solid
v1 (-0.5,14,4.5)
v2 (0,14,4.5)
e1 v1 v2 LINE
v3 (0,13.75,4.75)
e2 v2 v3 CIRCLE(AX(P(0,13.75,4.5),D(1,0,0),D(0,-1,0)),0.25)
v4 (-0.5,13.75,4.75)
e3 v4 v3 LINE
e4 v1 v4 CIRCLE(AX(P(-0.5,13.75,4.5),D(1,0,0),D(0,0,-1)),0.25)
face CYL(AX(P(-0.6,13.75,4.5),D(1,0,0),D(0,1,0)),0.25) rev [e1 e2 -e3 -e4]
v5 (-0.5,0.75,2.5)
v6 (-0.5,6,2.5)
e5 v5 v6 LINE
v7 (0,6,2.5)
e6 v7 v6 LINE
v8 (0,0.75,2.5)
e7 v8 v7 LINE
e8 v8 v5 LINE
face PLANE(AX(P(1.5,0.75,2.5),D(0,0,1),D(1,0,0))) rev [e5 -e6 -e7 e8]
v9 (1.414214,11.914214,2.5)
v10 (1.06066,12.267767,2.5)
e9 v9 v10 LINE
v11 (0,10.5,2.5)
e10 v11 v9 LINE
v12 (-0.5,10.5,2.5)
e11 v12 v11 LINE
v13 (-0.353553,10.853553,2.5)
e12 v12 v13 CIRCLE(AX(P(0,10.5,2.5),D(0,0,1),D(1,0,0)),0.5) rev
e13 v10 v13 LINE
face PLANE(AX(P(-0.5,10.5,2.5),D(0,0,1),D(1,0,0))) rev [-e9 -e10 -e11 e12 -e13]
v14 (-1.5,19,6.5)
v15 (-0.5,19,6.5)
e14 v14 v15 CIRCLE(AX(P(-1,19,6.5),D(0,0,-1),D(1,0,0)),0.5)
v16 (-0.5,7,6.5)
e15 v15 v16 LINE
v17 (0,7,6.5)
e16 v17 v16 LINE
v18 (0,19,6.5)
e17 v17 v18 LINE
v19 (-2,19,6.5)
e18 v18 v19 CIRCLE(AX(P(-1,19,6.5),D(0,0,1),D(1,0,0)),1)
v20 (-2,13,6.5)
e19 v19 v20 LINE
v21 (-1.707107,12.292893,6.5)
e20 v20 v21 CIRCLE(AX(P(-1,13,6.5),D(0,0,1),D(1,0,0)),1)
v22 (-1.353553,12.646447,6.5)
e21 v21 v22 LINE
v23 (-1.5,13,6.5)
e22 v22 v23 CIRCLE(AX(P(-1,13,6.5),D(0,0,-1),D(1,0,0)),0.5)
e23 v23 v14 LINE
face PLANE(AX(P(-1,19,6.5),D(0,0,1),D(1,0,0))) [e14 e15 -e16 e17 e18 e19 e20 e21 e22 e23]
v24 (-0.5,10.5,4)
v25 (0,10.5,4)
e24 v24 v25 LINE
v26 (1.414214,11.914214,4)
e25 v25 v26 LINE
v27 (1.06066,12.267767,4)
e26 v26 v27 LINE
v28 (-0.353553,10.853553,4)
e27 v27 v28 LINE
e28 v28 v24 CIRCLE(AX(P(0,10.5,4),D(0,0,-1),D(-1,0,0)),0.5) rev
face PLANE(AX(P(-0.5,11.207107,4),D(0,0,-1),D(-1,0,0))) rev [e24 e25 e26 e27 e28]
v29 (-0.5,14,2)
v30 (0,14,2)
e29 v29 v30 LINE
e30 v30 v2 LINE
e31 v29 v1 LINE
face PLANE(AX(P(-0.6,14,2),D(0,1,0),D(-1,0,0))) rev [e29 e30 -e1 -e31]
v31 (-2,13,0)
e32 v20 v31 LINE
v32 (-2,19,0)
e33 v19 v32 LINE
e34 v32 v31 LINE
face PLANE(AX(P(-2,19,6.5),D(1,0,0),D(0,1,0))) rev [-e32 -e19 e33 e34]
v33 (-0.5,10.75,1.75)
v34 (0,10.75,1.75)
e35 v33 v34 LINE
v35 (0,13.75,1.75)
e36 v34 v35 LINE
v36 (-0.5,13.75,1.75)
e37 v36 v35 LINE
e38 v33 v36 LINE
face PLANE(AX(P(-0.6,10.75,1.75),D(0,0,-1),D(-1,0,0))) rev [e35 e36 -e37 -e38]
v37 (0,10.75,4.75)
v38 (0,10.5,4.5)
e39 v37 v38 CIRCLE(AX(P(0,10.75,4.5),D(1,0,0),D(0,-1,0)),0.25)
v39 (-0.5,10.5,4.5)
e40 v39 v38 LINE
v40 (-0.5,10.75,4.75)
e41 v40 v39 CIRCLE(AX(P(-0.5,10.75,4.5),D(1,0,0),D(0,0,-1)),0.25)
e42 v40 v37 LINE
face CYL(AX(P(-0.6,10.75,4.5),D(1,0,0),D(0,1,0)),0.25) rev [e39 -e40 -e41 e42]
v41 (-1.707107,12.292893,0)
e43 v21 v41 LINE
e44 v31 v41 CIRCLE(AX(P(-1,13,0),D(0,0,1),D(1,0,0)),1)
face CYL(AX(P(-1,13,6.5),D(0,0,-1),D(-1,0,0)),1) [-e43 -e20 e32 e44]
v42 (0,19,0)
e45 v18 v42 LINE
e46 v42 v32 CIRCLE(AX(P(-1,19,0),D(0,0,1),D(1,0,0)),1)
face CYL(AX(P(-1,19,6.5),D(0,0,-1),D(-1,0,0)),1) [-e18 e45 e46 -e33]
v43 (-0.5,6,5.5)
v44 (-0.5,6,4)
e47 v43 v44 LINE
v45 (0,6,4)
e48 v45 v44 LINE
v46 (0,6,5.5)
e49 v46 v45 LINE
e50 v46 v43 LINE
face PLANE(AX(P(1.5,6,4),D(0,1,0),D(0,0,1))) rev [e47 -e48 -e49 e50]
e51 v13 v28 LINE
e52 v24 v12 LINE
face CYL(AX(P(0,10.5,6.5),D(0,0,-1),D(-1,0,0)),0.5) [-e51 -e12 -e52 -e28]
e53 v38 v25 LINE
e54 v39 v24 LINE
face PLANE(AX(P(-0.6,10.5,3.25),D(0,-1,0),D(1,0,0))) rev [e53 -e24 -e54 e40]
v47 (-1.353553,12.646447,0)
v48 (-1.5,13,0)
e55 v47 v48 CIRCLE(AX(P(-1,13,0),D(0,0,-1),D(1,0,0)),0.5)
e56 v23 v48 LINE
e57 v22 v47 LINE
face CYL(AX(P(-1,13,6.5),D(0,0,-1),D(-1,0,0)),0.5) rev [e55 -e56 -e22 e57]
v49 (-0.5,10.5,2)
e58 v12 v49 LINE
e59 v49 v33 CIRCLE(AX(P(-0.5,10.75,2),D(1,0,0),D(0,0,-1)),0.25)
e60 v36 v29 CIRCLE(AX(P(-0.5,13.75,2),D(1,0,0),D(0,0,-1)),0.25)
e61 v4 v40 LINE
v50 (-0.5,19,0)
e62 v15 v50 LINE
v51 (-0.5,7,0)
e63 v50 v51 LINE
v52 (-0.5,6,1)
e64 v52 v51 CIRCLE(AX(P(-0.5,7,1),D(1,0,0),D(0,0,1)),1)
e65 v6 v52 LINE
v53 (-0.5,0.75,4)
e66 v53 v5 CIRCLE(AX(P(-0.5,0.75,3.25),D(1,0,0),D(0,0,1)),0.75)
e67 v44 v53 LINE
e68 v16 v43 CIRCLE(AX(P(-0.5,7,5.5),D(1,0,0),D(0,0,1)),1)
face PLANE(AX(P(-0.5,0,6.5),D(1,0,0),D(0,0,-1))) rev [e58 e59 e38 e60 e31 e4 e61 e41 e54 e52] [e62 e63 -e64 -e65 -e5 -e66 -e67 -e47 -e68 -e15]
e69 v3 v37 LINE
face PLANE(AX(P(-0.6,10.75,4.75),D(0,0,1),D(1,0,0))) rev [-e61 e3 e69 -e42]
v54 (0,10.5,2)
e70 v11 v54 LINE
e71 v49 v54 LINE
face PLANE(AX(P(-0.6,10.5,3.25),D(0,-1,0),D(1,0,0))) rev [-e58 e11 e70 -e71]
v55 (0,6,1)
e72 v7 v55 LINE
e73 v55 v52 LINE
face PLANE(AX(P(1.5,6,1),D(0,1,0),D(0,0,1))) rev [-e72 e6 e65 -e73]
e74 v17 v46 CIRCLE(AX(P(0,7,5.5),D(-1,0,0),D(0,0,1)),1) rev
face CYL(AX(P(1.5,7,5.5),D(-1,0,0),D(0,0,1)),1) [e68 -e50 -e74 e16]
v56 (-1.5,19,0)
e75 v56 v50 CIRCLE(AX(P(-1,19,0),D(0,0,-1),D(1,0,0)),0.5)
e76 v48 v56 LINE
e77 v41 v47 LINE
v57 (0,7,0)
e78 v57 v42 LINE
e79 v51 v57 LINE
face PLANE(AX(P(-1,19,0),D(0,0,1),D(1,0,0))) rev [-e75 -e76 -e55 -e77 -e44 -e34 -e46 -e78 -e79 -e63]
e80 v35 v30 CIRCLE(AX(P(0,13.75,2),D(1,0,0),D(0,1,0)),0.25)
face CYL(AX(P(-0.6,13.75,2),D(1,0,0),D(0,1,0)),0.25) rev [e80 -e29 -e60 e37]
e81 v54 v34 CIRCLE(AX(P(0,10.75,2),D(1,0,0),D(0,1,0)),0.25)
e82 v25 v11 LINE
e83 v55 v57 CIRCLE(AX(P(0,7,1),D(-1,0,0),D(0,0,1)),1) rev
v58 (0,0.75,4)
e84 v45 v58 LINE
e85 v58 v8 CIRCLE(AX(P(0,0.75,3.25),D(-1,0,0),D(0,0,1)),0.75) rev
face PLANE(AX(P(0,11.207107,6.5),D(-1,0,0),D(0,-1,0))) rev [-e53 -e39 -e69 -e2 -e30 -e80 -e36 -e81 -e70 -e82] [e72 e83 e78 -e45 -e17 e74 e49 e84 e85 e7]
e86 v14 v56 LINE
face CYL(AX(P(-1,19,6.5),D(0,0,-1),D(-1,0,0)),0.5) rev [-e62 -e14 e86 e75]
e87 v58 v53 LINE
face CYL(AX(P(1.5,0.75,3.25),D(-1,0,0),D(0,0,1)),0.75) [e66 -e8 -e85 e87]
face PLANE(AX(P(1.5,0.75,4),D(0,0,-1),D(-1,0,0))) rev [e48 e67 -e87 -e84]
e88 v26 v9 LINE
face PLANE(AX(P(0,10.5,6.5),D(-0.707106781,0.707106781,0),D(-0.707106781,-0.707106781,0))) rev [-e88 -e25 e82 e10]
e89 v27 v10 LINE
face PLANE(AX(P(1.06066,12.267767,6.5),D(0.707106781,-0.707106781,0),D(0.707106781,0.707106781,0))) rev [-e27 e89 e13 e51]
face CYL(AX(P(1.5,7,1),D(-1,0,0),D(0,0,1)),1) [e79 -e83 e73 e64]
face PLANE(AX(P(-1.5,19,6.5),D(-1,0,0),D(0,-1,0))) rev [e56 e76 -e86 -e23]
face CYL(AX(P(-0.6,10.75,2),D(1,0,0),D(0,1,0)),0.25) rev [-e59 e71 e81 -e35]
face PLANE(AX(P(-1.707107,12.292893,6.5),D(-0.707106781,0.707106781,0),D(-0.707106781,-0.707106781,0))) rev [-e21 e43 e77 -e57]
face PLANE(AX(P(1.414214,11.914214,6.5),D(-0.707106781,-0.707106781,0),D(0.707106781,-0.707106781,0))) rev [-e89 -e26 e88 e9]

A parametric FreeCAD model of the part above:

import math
import FreeCAD as App
import Part
import Sketcher
from FreeCAD import Vector
Q = App.Units.Quantity


def edges_at(feature, points):
    """Names of the edges that pass closest to the given points."""
    edges = feature.Shape.Edges
    near = lambda p: min(range(len(edges)), key=lambda i: edges[i].distToShape(Part.Vertex(*p))[0])
    return sorted({f"Edge{near(p) + 1}" for p in points})


def add_polygon(sketch, points):
    """Adds a closed chain of lines whose ends are joined by coincident constraints."""
    first, n = sketch.GeometryCount, len(points)
    for a, b in zip(points, points[1:] + points[:1]):
        sketch.addGeometry(Part.LineSegment(App.Vector(*a, 0), App.Vector(*b, 0)), False)
    for i in range(n):
        sketch.addConstraint(Sketcher.Constraint("Coincident", first + i, 2, first + (i + 1) % n, 1))

doc = App.newDocument("Part")
body = doc.addObject("PartDesign::Body", "Body")
body.AllowCompound = True

# Sketch on XY plane
sketch1 = body.newObject("Sketcher::SketchObject", "Sketch")
sketch1.AttachmentSupport = (doc.getObject("XY_Plane"), [""])
sketch1.MapMode = "FlatFace"
sketch1.addGeometry([
    Part.LineSegment(Vector(-2, 19, 0), Vector(-2, 13, 0)),  # 0
    Part.ArcOfCircle(Part.Circle(Vector(-1, 13, 0), Vector(0, 0, 1), 1), math.radians(180), math.radians(225)),  # 1
    Part.LineSegment(Vector(-1.707107, 12.292893, 0), Vector(-1.353553, 12.646447, 0)),  # 2
    Part.ArcOfCircle(Part.Circle(Vector(-1, 13, 0), Vector(0, 0, 1), 0.5), math.radians(-180), math.radians(-135)),  # 3
    Part.LineSegment(Vector(-1.5, 13, 0), Vector(-1.5, 19, 0)),  # 4
    Part.ArcOfCircle(Part.Circle(Vector(-1, 19, 0), Vector(0, 0, 1), 0.5), math.radians(0), math.radians(180)),  # 5
    Part.LineSegment(Vector(-0.5, 19, 0), Vector(-0.5, 0, 0)),  # 6
    Part.LineSegment(Vector(-0.5, 0, 0), Vector(0, 0, 0)),  # 7
    Part.LineSegment(Vector(0, 0, 0), Vector(0, 10.5, 0)),  # 8
    Part.LineSegment(Vector(0, 10.5, 0), Vector(1.414214, 11.914214, 0)),  # 9
    Part.LineSegment(Vector(1.414214, 11.914214, 0), Vector(1.06066, 12.267767, 0)),  # 10
    Part.LineSegment(Vector(1.06066, 12.267767, 0), Vector(0, 11.207107, 0)),  # 11
    Part.LineSegment(Vector(0, 11.207107, 0), Vector(0, 19, 0)),  # 12
    Part.ArcOfCircle(Part.Circle(Vector(-1, 19, 0), Vector(0, 0, 1), 1), math.radians(0), math.radians(180)),  # 13
], False)
sketch1.addConstraint([
    Sketcher.Constraint("Tangent", 0, 2, 1, 1),
    Sketcher.Constraint("Coincident", 1, 2, 2, 1),
    Sketcher.Constraint("Coincident", 2, 2, 3, 2),
    Sketcher.Constraint("Tangent", 3, 1, 4, 1),
    Sketcher.Constraint("Tangent", 4, 2, 5, 2),
    Sketcher.Constraint("Tangent", 5, 1, 6, 1),
    Sketcher.Constraint("Coincident", 6, 2, 7, 1),
    Sketcher.Constraint("Coincident", 7, 2, 8, 1),
    Sketcher.Constraint("Coincident", 8, 2, 9, 1),
    Sketcher.Constraint("Coincident", 9, 2, 10, 1),
    Sketcher.Constraint("Coincident", 10, 2, 11, 1),
    Sketcher.Constraint("Coincident", 11, 2, 12, 1),
    Sketcher.Constraint("Tangent", 12, 2, 13, 1),
    Sketcher.Constraint("Tangent", 13, 2, 0, 1),
    Sketcher.Constraint("Vertical", 0),
    Sketcher.Constraint("Vertical", 4),
    Sketcher.Constraint("Vertical", 6),
    Sketcher.Constraint("Horizontal", 7),
    Sketcher.Constraint("Vertical", 8),
    Sketcher.Constraint("Vertical", 12),
    Sketcher.Constraint("Coincident", 7, 2, -1, 1),
    Sketcher.Constraint("Coincident", 3, 3, 1, 3),
    Sketcher.Constraint("Coincident", 13, 3, 5, 3),
    Sketcher.Constraint("Equal", 3, 5),
    Sketcher.Constraint("PointOnObject", 11, 2, -2),
    Sketcher.Constraint("Parallel", 2, 9),
    Sketcher.Constraint("Perpendicular", 9, 10),
    Sketcher.Constraint("Perpendicular", 10, 11),
    Sketcher.Constraint("Equal", 2, 10),
    Sketcher.Constraint("Radius", 1, 1.0),
    Sketcher.Constraint("Radius", 3, 0.5),
    Sketcher.Constraint("DistanceY", 0, 2, 0, 1, 6.0),
    Sketcher.Constraint("DistanceY", 6, 2, 6, 1, 19.0),
    Sketcher.Constraint("Angle", 2, Q("45 deg")),
    Sketcher.Constraint("Distance", 9, 2.0),
    Sketcher.Constraint("DistanceY", 8, 1, 8, 2, 10.5),
    Sketcher.Constraint("DistanceY", 10, 2, 2, 2, 0.37868),
])
pad1 = body.newObject("PartDesign::Pad", "Pad")
pad1.Profile = sketch1
pad1.Length = 6.5

# Sketch on YZ plane
sketch2 = body.newObject("Sketcher::SketchObject", "Sketch001")
sketch2.AttachmentSupport = (doc.getObject("YZ_Plane"), [""])
sketch2.MapMode = "FlatFace"
sketch2.AttachmentOffset = App.Placement(Vector(0, 0, -0.5), App.Rotation())
sketch2.addGeometry([
    Part.LineSegment(Vector(6, 5.5, 0), Vector(6, 4, 0)),  # 0
    Part.LineSegment(Vector(6, 4, 0), Vector(0.75, 4, 0)),  # 1
    Part.ArcOfCircle(Part.Circle(Vector(0.75, 3.25, 0), Vector(0, 0, 1), 0.75), math.radians(90), math.radians(270)),  # 2
    Part.LineSegment(Vector(0.75, 2.5, 0), Vector(6, 2.5, 0)),  # 3
    Part.LineSegment(Vector(6, 2.5, 0), Vector(6, 1, 0)),  # 4
    Part.ArcOfCircle(Part.Circle(Vector(7, 1, 0), Vector(0, 0, 1), 1), math.radians(-180), math.radians(-90)),  # 5
    Part.LineSegment(Vector(7, 0, 0), Vector(7, -2, 0)),  # 6
    Part.LineSegment(Vector(7, -2, 0), Vector(-1, -2, 0)),  # 7
    Part.LineSegment(Vector(-1, -2, 0), Vector(-1, 8.5, 0)),  # 8
    Part.LineSegment(Vector(-1, 8.5, 0), Vector(7, 8.5, 0)),  # 9
    Part.LineSegment(Vector(7, 8.5, 0), Vector(7, 6.5, 0)),  # 10
    Part.ArcOfCircle(Part.Circle(Vector(7, 5.5, 0), Vector(0, 0, 1), 1), math.radians(90), math.radians(180)),  # 11
], False)
sketch2.addConstraint([
    Sketcher.Constraint("Coincident", 0, 2, 1, 1),
    Sketcher.Constraint("Tangent", 1, 2, 2, 1),
    Sketcher.Constraint("Tangent", 2, 2, 3, 1),
    Sketcher.Constraint("Coincident", 3, 2, 4, 1),
    Sketcher.Constraint("Tangent", 4, 2, 5, 1),
    Sketcher.Constraint("Coincident", 5, 2, 6, 1),
    Sketcher.Constraint("Coincident", 6, 2, 7, 1),
    Sketcher.Constraint("Coincident", 7, 2, 8, 1),
    Sketcher.Constraint("Coincident", 8, 2, 9, 1),
    Sketcher.Constraint("Coincident", 9, 2, 10, 1),
    Sketcher.Constraint("Coincident", 10, 2, 11, 1),
    Sketcher.Constraint("Tangent", 11, 2, 0, 1),
    Sketcher.Constraint("Vertical", 0),
    Sketcher.Constraint("Horizontal", 1),
    Sketcher.Constraint("Horizontal", 3),
    Sketcher.Constraint("Vertical", 4),
    Sketcher.Constraint("Vertical", 6),
    Sketcher.Constraint("Horizontal", 7),
    Sketcher.Constraint("Vertical", 8),
    Sketcher.Constraint("Horizontal", 9),
    Sketcher.Constraint("Vertical", 10),
    Sketcher.Constraint("Equal", 5, 11),
    Sketcher.Constraint("PointOnObject", 5, 2, -1),
    Sketcher.Constraint("Vertical", 5, 3, 11, 3),
    Sketcher.Constraint("Vertical", 11, 3, 5, 2),
    Sketcher.Constraint("Vertical", 6, 2, 9, 2),
    Sketcher.Constraint("Equal", 0, 4),
    Sketcher.Constraint("Equal", 6, 10),
    Sketcher.Constraint("Radius", 5, 1.0),
    Sketcher.Constraint("DistanceX", 7, 2, 7, 1, 8.0),
    Sketcher.Constraint("DistanceY", 6, 2, 6, 1, 2.0),
    Sketcher.Constraint("Radius", 2, 0.75),
    Sketcher.Constraint("DistanceY", 0, 2, 0, 1, 1.5),
    Sketcher.Constraint("DistanceX", -1, 1, 5, 3, 7.0),
    Sketcher.Constraint("DistanceX", 1, 2, 1, 1, 5.25),
])
pocket1 = body.newObject("PartDesign::Pocket", "Pocket")
pocket1.Profile = sketch2
pocket1.Length = 2
pocket1.Reversed = True

# Sketch on XY plane
sketch3 = body.newObject("Sketcher::SketchObject", "Sketch002")
sketch3.AttachmentSupport = (doc.getObject("XY_Plane"), [""])
sketch3.MapMode = "FlatFace"
sketch3.AttachmentOffset = App.Placement(Vector(0, 0, 6.5), App.Rotation())
add_polygon(sketch3, [(0, 12.5), (0, 10.5), (2, 10.5), (2, 12.5)])  # lines 0-3
sketch3.addConstraint([
    Sketcher.Constraint("Vertical", 0),
    Sketcher.Constraint("Horizontal", 1),
    Sketcher.Constraint("Vertical", 2),
    Sketcher.Constraint("Horizontal", 3),
    Sketcher.Constraint("PointOnObject", 0, 2, -2),
    Sketcher.Constraint("Equal", 3, 0),
    Sketcher.Constraint("DistanceX", 1, 1, 1, 2, 2.0),
    Sketcher.Constraint("DistanceY", -1, 1, 0, 2, 10.5),
])
pocket2 = body.newObject("PartDesign::Pocket", "Pocket001")
pocket2.Profile = sketch3
pocket2.Length = 2.5

# Sketch on XY plane
sketch4 = body.newObject("Sketcher::SketchObject", "Sketch003")
sketch4.AttachmentSupport = (doc.getObject("XY_Plane"), [""])
sketch4.MapMode = "FlatFace"
add_polygon(sketch4, [(2, 12.5), (2, 10.5), (0, 10.5), (0, 12.5)])  # lines 0-3
sketch4.addConstraint([
    Sketcher.Constraint("Vertical", 0),
    Sketcher.Constraint("Horizontal", 1),
    Sketcher.Constraint("Vertical", 2),
    Sketcher.Constraint("Horizontal", 3),
    Sketcher.Constraint("PointOnObject", 1, 2, -2),
    Sketcher.Constraint("Equal", 3, 0),
    Sketcher.Constraint("DistanceX", 1, 2, 1, 1, 2.0),
    Sketcher.Constraint("DistanceY", -1, 1, 0, 2, 10.5),
])
pocket3 = body.newObject("PartDesign::Pocket", "Pocket002")
pocket3.Profile = sketch4
pocket3.Length = 2.5
pocket3.Reversed = True

# Sketch on YZ plane
sketch5 = body.newObject("Sketcher::SketchObject", "Sketch004")
sketch5.AttachmentSupport = (doc.getObject("YZ_Plane"), [""])
sketch5.MapMode = "FlatFace"
sketch5.addGeometry([
    Part.ArcOfCircle(Part.Circle(Vector(10.75, 2, 0), Vector(0, 0, 1), 0.25), math.radians(-180), math.radians(-90)),  # 0
    Part.LineSegment(Vector(10.75, 1.75, 0), Vector(13.75, 1.75, 0)),  # 1
    Part.ArcOfCircle(Part.Circle(Vector(13.75, 2, 0), Vector(0, 0, 1), 0.25), math.radians(-90), math.radians(0)),  # 2
    Part.LineSegment(Vector(14, 2, 0), Vector(14, 4.5, 0)),  # 3
    Part.ArcOfCircle(Part.Circle(Vector(13.75, 4.5, 0), Vector(0, 0, 1), 0.25), math.radians(0), math.radians(90)),  # 4
    Part.LineSegment(Vector(13.75, 4.75, 0), Vector(10.75, 4.75, 0)),  # 5
    Part.ArcOfCircle(Part.Circle(Vector(10.75, 4.5, 0), Vector(0, 0, 1), 0.25), math.radians(90), math.radians(180)),  # 6
    Part.LineSegment(Vector(10.5, 4.5, 0), Vector(10.5, 2, 0)),  # 7
], False)
sketch5.addConstraint([
    Sketcher.Constraint("Tangent", 0, 2, 1, 1),
    Sketcher.Constraint("Tangent", 1, 2, 2, 1),
    Sketcher.Constraint("Tangent", 2, 2, 3, 1),
    Sketcher.Constraint("Tangent", 3, 2, 4, 1),
    Sketcher.Constraint("Tangent", 4, 2, 5, 1),
    Sketcher.Constraint("Tangent", 5, 2, 6, 1),
    Sketcher.Constraint("Tangent", 6, 2, 7, 1),
    Sketcher.Constraint("Tangent", 7, 2, 0, 1),
    Sketcher.Constraint("Horizontal", 1),
    Sketcher.Constraint("Vertical", 3),
    Sketcher.Constraint("Horizontal", 5),
    Sketcher.Constraint("Vertical", 7),
    Sketcher.Constraint("Equal", 0, 2),
    Sketcher.Constraint("Equal", 2, 4),
    Sketcher.Constraint("Equal", 4, 6),
    Sketcher.Constraint("DistanceX", 1, 1, 1, 2, 3.0),
    Sketcher.Constraint("Radius", 0, 0.25),
    Sketcher.Constraint("DistanceY", 3, 1, 3, 2, 2.5),
    Sketcher.Constraint("DistanceY", -1, 1, 0, 3, 2.0),
    Sketcher.Constraint("DistanceX", -1, 1, 2, 2, 14.0),
])
pocket4 = body.newObject("PartDesign::Pocket", "Pocket003")
pocket4.Profile = sketch5
pocket4.Length = 0.6

# Sketch on YZ plane
sketch6 = body.newObject("Sketcher::SketchObject", "Sketch005")
sketch6.AttachmentSupport = (doc.getObject("YZ_Plane"), [""])
sketch6.MapMode = "FlatFace"
add_polygon(sketch6, [(11.207107, 2.5), (10.5, 2.5), (10.5, 4), (11.207107, 4)])  # lines 0-3
sketch6.addConstraint([
    Sketcher.Constraint("Horizontal", 0),
    Sketcher.Constraint("Vertical", 1),
    Sketcher.Constraint("Horizontal", 2),
    Sketcher.Constraint("Vertical", 3),
    Sketcher.Constraint("DistanceY", 1, 1, 1, 2, 1.5),
    Sketcher.Constraint("DistanceY", -1, 1, 1, 2, 4.0),
    Sketcher.Constraint("DistanceX", -1, 1, 0, 2, 10.5),
    Sketcher.Constraint("DistanceX", 0, 2, 0, 1, 0.707107),
])
pad2 = body.newObject("PartDesign::Pad", "Pad001")
pad2.Profile = sketch6
pad2.Length = 0.5
pad2.Reversed = True

# Sketch on XY plane
sketch7 = body.newObject("Sketcher::SketchObject", "Sketch006")
sketch7.AttachmentSupport = (doc.getObject("XY_Plane"), [""])
sketch7.MapMode = "FlatFace"
sketch7.AttachmentOffset = App.Placement(Vector(0, 0, 2.5), App.Rotation())
add_polygon(sketch7, [(0, 11.207107), (-0.5, 10.707107), (-1, 10.707107), (-1, 11.207107)])  # lines 0-3
sketch7.addConstraint([
    Sketcher.Constraint("Horizontal", 1),
    Sketcher.Constraint("Vertical", 2),
    Sketcher.Constraint("Horizontal", 3),
    Sketcher.Constraint("PointOnObject", 3, 2, -2),
    Sketcher.Constraint("Equal", 1, 2),
    Sketcher.Constraint("DistanceX", 3, 1, 3, 2, 1.0),
    Sketcher.Constraint("Angle", 0, Q("-135 deg")),
    Sketcher.Constraint("DistanceY", -1, 1, 0, 2, 10.707107),
])
pocket5 = body.newObject("PartDesign::Pocket", "Pocket004")
pocket5.Profile = sketch7
pocket5.Length = 2
pocket5.Reversed = True
doc.recompute()

fillet = body.newObject("PartDesign::Fillet", "Fillet")
fillet.Base = (pocket5, edges_at(pocket5, [(-0.5, 10.707, 3.25)]))
fillet.Radius = 0.5

doc.recompute()
